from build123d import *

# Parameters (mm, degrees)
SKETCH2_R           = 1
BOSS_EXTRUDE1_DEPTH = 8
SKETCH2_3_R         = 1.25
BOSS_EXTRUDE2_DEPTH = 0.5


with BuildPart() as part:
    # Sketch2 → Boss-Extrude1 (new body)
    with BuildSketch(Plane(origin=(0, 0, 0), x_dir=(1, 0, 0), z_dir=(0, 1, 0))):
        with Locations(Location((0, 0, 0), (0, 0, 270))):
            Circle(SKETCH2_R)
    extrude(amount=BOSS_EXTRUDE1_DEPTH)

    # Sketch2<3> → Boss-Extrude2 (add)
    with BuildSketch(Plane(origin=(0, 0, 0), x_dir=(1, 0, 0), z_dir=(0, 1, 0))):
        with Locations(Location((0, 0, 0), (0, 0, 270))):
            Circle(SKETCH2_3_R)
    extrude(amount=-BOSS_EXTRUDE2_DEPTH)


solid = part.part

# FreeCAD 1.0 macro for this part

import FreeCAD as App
import Part
import Sketcher
from FreeCAD import Vector

doc = App.newDocument("Part")
params = doc.addObject("Spreadsheet::Sheet", "Params")
for row, (alias, value) in enumerate([
    ("sketch1_diameter", "2 mm"),
    ("pad1_length", "8 mm"),
    ("sketch2_diameter", "2.5 mm"),
    ("pad2_length", "0.5 mm"),
], start=1):
    params.set(f"A{row}", alias)
    params.set(f"B{row}", "=" + value)
    params.setAlias(f"B{row}", alias)

body = doc.addObject("PartDesign::Body", "Body")

sketch1 = body.newObject("Sketcher::SketchObject", "Sketch")
sketch1.AttachmentSupport = (doc.getObject("XZ_Plane"), [""])
sketch1.MapMode = "FlatFace"
sketch1.addGeometry(Part.Circle(Vector(0, 0, 0), Vector(0, 0, 1), 1), False)
sketch1.addConstraint(Sketcher.Constraint("Coincident", 0, 3, -1, 1))
sketch1.addConstraint(Sketcher.Constraint("Diameter", 0, 2.0))
sketch1.setExpression("Constraints[1]", "Params.sketch1_diameter")
pad1 = body.newObject("PartDesign::Pad", "Pad")
pad1.Profile = sketch1
pad1.setExpression("Length", "Params.pad1_length")
pad1.Reversed = True

sketch2 = body.newObject("Sketcher::SketchObject", "Sketch001")
sketch2.AttachmentSupport = (doc.getObject("XZ_Plane"), [""])
sketch2.MapMode = "FlatFace"
sketch2.addGeometry(Part.Circle(Vector(0, 0, 0), Vector(0, 0, 1), 1.2), False)
sketch2.addConstraint(Sketcher.Constraint("Coincident", 0, 3, -1, 1))
sketch2.addConstraint(Sketcher.Constraint("Diameter", 0, 2.5))
sketch2.setExpression("Constraints[1]", "Params.sketch2_diameter")
pad2 = body.newObject("PartDesign::Pad", "Pad001")
pad2.Profile = sketch2
pad2.setExpression("Length", "Params.pad2_length")

doc.recompute()
